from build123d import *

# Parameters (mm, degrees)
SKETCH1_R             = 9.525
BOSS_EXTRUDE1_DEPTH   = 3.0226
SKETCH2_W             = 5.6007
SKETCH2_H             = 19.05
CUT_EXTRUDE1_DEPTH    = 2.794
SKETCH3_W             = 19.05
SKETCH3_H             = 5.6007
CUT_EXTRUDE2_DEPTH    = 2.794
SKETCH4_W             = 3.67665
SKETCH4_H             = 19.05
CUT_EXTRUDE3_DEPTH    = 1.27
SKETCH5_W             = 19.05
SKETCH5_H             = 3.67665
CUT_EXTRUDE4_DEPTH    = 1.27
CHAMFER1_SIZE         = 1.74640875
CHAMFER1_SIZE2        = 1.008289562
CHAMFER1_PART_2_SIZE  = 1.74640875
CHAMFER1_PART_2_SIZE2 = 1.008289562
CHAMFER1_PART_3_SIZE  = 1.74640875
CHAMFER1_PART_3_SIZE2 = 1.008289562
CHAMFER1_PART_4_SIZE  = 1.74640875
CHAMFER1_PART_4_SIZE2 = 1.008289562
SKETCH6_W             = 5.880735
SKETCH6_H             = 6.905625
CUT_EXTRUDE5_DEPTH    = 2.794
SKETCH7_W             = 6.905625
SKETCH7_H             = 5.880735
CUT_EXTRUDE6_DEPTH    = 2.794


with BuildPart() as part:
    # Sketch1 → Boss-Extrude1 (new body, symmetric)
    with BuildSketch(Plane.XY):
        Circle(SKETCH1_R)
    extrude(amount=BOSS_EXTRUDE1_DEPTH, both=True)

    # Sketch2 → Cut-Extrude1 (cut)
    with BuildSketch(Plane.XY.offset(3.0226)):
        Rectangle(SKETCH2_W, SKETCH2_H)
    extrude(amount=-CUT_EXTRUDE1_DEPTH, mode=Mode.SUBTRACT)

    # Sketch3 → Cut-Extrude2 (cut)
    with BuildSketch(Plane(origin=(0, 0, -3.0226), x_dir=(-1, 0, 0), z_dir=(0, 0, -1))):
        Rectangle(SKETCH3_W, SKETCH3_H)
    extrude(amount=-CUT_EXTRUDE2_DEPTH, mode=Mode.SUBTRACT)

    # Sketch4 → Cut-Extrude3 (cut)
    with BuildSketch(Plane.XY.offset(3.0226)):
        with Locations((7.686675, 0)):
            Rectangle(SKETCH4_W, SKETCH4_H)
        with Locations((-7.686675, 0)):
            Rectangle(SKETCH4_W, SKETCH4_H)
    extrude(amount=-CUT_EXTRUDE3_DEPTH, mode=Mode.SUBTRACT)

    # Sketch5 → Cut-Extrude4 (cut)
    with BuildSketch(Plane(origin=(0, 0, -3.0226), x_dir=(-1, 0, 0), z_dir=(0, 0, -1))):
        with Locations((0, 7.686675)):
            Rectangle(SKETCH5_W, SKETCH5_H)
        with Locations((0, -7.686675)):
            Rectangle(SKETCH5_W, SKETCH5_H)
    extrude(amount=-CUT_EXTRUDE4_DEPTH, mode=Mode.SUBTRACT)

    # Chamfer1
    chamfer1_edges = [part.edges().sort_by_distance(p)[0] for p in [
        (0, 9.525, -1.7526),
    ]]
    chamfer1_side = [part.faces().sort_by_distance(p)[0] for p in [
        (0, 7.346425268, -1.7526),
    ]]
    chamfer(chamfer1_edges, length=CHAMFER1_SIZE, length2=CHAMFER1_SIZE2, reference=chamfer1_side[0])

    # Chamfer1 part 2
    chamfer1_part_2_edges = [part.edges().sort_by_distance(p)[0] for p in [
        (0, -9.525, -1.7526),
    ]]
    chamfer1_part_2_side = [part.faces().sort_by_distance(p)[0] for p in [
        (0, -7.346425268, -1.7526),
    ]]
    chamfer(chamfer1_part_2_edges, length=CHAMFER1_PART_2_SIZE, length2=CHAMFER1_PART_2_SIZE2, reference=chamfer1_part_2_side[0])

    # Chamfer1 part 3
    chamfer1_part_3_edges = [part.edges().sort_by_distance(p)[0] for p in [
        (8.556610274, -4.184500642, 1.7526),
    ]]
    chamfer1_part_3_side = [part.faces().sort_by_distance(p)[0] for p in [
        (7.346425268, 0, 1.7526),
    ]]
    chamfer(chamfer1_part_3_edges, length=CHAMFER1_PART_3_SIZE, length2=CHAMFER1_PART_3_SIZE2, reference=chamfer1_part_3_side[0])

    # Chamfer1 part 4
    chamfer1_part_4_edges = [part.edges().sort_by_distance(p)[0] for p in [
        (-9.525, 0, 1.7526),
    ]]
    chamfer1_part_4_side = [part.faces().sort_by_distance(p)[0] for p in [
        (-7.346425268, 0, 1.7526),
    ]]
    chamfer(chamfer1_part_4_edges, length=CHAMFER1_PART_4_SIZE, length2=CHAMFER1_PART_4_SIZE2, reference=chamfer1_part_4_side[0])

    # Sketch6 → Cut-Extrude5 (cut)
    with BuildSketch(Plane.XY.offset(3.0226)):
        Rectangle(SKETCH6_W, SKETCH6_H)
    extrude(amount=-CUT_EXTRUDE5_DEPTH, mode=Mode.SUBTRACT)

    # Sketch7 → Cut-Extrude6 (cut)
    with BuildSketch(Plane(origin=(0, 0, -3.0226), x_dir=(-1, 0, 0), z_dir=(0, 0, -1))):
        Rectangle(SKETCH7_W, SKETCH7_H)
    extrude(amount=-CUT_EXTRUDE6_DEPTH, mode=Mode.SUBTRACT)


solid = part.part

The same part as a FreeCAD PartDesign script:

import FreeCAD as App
import Part
import Sketcher

V = App.Vector
Q = App.Units.Quantity


def edges_at(feature, points):
    """Names of the edges that pass closest to the given points."""
    edges = feature.Shape.Edges
    near = lambda p: min(range(len(edges)), key=lambda i: edges[i].distToShape(Part.Vertex(*p))[0])
    return sorted({f"Edge{near(p) + 1}" for p in points})

doc = App.newDocument("Part")
params = doc.addObject("Spreadsheet::Sheet", "Params")
for row, (alias, value) in enumerate([
    ("sketch1_diameter", "0.75 in"),
    ("pad1_length", "0.238 in"),
    ("sketch2_height", "0.75 in"),
    ("pocket1_length", "0.11 in"),
    ("sketch3_width", "0.75 in"),
    ("pocket2_length", "0.11 in"),
    ("sketch4_height", "0.75 in"),
    ("pocket3_length", "0.05 in"),
    ("sketch5_width", "0.75 in"),
    ("pocket4_length", "0.05 in"),
    ("chamfer_size", "1.746409 mm"),
    ("chamfer_size2", "1.00829 mm"),
    ("chamfer2_size", "1.746409 mm"),
    ("chamfer2_size2", "1.00829 mm"),
    ("chamfer3_size", "1.746409 mm"),
    ("chamfer3_size2", "1.00829 mm"),
    ("chamfer4_size", "1.746409 mm"),
    ("chamfer4_size2", "1.00829 mm"),
    ("pocket5_length", "0.11 in"),
    ("pocket6_length", "0.11 in"),
], start=1):
    params.set(f"A{row}", alias)
    params.set(f"B{row}", "=" + value)
    params.setAlias(f"B{row}", alias)

body = doc.addObject("PartDesign::Body", "Body")

# Sketch on XY plane
sketch1 = body.newObject("Sketcher::SketchObject", "Sketch")
sketch1.AttachmentSupport = (doc.getObject("XY_Plane"), [""])
sketch1.MapMode = "FlatFace"
sketch1.addGeometry(Part.Circle(V(0, 0, 0), V(0, 0, 1), 10), False)
sketch1.addConstraint(Sketcher.Constraint("Coincident", 0, 3, -1, 1))
sketch1.addConstraint(Sketcher.Constraint("Diameter", 0, Q("0.75 in")))
sketch1.setExpression("Constraints[1]", "Params.sketch1_diameter")
pad1 = body.newObject("PartDesign::Pad", "Pad")
pad1.Profile = sketch1
pad1.setExpression("Length", "Params.pad1_length")
pad1.Midplane = True

# Sketch on XY plane
sketch2 = body.newObject("Sketcher::SketchObject", "Sketch001")
sketch2.AttachmentSupport = (doc.getObject("XY_Plane"), [""])
sketch2.MapMode = "FlatFace"
sketch2.AttachmentOffset = App.Placement(V(0, 0, 0.119 * 25.4), App.Rotation())
sketch2.addGeometry(Part.LineSegment(V(-3, 10, 0), V(-3, -10, 0)), False)
sketch2.addGeometry(Part.LineSegment(V(-3, -10, 0), V(3, -10, 0)), False)
sketch2.addGeometry(Part.LineSegment(V(3, -10, 0), V(3, 10, 0)), False)
sketch2.addGeometry(Part.LineSegment(V(3, 10, 0), V(-3, 10, 0)), False)
sketch2.addConstraint(Sketcher.Constraint("Coincident", 0, 2, 1, 1))
sketch2.addConstraint(Sketcher.Constraint("Coincident", 1, 2, 2, 1))
sketch2.addConstraint(Sketcher.Constraint("Coincident", 2, 2, 3, 1))
sketch2.addConstraint(Sketcher.Constraint("Coincident", 3, 2, 0, 1))
sketch2.addConstraint(Sketcher.Constraint("Vertical", 0))
sketch2.addConstraint(Sketcher.Constraint("Horizontal", 1))
sketch2.addConstraint(Sketcher.Constraint("Vertical", 2))
sketch2.addConstraint(Sketcher.Constraint("Horizontal", 3))
sketch2.addConstraint(Sketcher.Constraint("Symmetric", 0, 2, 2, 2, -1, 1))
sketch2.addConstraint(Sketcher.Constraint("DistanceY", 0, 2, 0, 1, Q("0.75 in")))
sketch2.addConstraint(Sketcher.Constraint("DistanceX", 1, 1, 1, 2, Q("0.2205 in")))
sketch2.setExpression("Constraints[9]", "Params.sketch2_height")
pocket1 = body.newObject("PartDesign::Pocket", "Pocket")
pocket1.Profile = sketch2
pocket1.setExpression("Length", "Params.pocket1_length")

# Sketch on XY plane
sketch3 = body.newObject("Sketcher::SketchObject", "Sketch002")
sketch3.AttachmentSupport = (doc.getObject("XY_Plane"), [""])
sketch3.MapMode = "FlatFace"
sketch3.AttachmentOffset = App.Placement(V(0, 0, -0.119 * 25.4), App.Rotation())
sketch3.addGeometry(Part.LineSegment(V(10, 3, 0), V(10, -3, 0)), False)
sketch3.addGeometry(Part.LineSegment(V(10, -3, 0), V(-10, -3, 0)), False)
sketch3.addGeometry(Part.LineSegment(V(-10, -3, 0), V(-10, 3, 0)), False)
sketch3.addGeometry(Part.LineSegment(V(-10, 3, 0), V(10, 3, 0)), False)
sketch3.addConstraint(Sketcher.Constraint("Coincident", 0, 2, 1, 1))
sketch3.addConstraint(Sketcher.Constraint("Coincident", 1, 2, 2, 1))
sketch3.addConstraint(Sketcher.Constraint("Coincident", 2, 2, 3, 1))
sketch3.addConstraint(Sketcher.Constraint("Coincident", 3, 2, 0, 1))
sketch3.addConstraint(Sketcher.Constraint("Vertical", 0))
sketch3.addConstraint(Sketcher.Constraint("Horizontal", 1))
sketch3.addConstraint(Sketcher.Constraint("Vertical", 2))
sketch3.addConstraint(Sketcher.Constraint("Horizontal", 3))
sketch3.addConstraint(Sketcher.Constraint("Symmetric", 0, 2, 2, 2, -1, 1))
sketch3.addConstraint(Sketcher.Constraint("DistanceX", 1, 2, 1, 1, Q("0.75 in")))
sketch3.addConstraint(Sketcher.Constraint("DistanceY", 0, 2, 0, 1, Q("0.2205 in")))
sketch3.setExpression("Constraints[9]", "Params.sketch3_width")
pocket2 = body.newObject("PartDesign::Pocket", "Pocket001")
pocket2.Profile = sketch3
pocket2.setExpression("Length", "Params.pocket2_length")
pocket2.Reversed = True

# Sketch on XY plane
sketch4 = body.newObject("Sketcher::SketchObject", "Sketch003")
sketch4.AttachmentSupport = (doc.getObject("XY_Plane"), [""])
sketch4.MapMode = "FlatFace"
sketch4.AttachmentOffset = App.Placement(V(0, 0, 0.119 * 25.4), App.Rotation())
sketch4.addGeometry(Part.LineSegment(V(5.8, 9.5, 0), V(5.8, -9.5, 0)), False)
sketch4.addGeometry(Part.LineSegment(V(5.8, -9.5, 0), V(9.5, -9.5, 0)), False)
sketch4.addGeometry(Part.LineSegment(V(9.5, -9.5, 0), V(9.5, 9.5, 0)), False)
sketch4.addGeometry(Part.LineSegment(V(9.5, 9.5, 0), V(5.8, 9.5, 0)), False)
sketch4.addGeometry(Part.LineSegment(V(-9.5, 9.5, 0), V(-9.5, -9.5, 0)), False)
sketch4.addGeometry(Part.LineSegment(V(-9.5, -9.5, 0), V(-5.8, -9.5, 0)), False)
sketch4.addGeometry(Part.LineSegment(V(-5.8, -9.5, 0), V(-5.8, 9.5, 0)), False)
sketch4.addGeometry(Part.LineSegment(V(-5.8, 9.5, 0), V(-9.5, 9.5, 0)), False)
sketch4.addConstraint(Sketcher.Constraint("Coincident", 0, 2, 1, 1))
sketch4.addConstraint(Sketcher.Constraint("Coincident", 1, 2, 2, 1))
sketch4.addConstraint(Sketcher.Constraint("Coincident", 2, 2, 3, 1))
sketch4.addConstraint(Sketcher.Constraint("Coincident", 3, 2, 0, 1))
sketch4.addConstraint(Sketcher.Constraint("Coincident", 4, 2, 5, 1))
sketch4.addConstraint(Sketcher.Constraint("Coincident", 5, 2, 6, 1))
sketch4.addConstraint(Sketcher.Constraint("Coincident", 6, 2, 7, 1))
sketch4.addConstraint(Sketcher.Constraint("Coincident", 7, 2, 4, 1))
sketch4.addConstraint(Sketcher.Constraint("Vertical", 0))
sketch4.addConstraint(Sketcher.Constraint("Horizontal", 1))
sketch4.addConstraint(Sketcher.Constraint("Vertical", 2))
sketch4.addConstraint(Sketcher.Constraint("Horizontal", 3))
sketch4.addConstraint(Sketcher.Constraint("Vertical", 4))
sketch4.addConstraint(Sketcher.Constraint("Horizontal", 5))
sketch4.addConstraint(Sketcher.Constraint("Vertical", 6))
sketch4.addConstraint(Sketcher.Constraint("Horizontal", 7))
sketch4.addConstraint(Sketcher.Constraint("Symmetric", 2, 2, 4, 2, -1, 1))
sketch4.addConstraint(Sketcher.Constraint("Symmetric", 0, 2, 6, 2, -1, 1))
sketch4.addConstraint(Sketcher.Constraint("Horizontal", 1, 2, 4, 2))
sketch4.addConstraint(Sketcher.Constraint("DistanceY", 0, 2, 0, 1, Q("0.75 in")))
sketch4.addConstraint(Sketcher.Constraint("DistanceX", 4, 2, 1, 2, Q("0.75 in")))
sketch4.addConstraint(Sketcher.Constraint("DistanceX", 5, 2, 0, 2, Q("0.4605 in")))
sketch4.setExpression("Constraints[19]", "Params.sketch4_height")
pocket3 = body.newObject("PartDesign::Pocket", "Pocket002")
pocket3.Profile = sketch4
pocket3.setExpression("Length", "Params.pocket3_length")

# Sketch on XY plane
sketch5 = body.newObject("Sketcher::SketchObject", "Sketch004")
sketch5.AttachmentSupport = (doc.getObject("XY_Plane"), [""])
sketch5.MapMode = "FlatFace"
sketch5.AttachmentOffset = App.Placement(V(0, 0, -0.119 * 25.4), App.Rotation())
sketch5.addGeometry(Part.LineSegment(V(9.5, 9.5, 0), V(9.5, 5.8, 0)), False)
sketch5.addGeometry(Part.LineSegment(V(9.5, 5.8, 0), V(-9.5, 5.8, 0)), False)
sketch5.addGeometry(Part.LineSegment(V(-9.5, 5.8, 0), V(-9.5, 9.5, 0)), False)
sketch5.addGeometry(Part.LineSegment(V(-9.5, 9.5, 0), V(9.5, 9.5, 0)), False)
sketch5.addGeometry(Part.LineSegment(V(9.5, -5.8, 0), V(9.5, -9.5, 0)), False)
sketch5.addGeometry(Part.LineSegment(V(9.5, -9.5, 0), V(-9.5, -9.5, 0)), False)
sketch5.addGeometry(Part.LineSegment(V(-9.5, -9.5, 0), V(-9.5, -5.8, 0)), False)
sketch5.addGeometry(Part.LineSegment(V(-9.5, -5.8, 0), V(9.5, -5.8, 0)), False)
sketch5.addConstraint(Sketcher.Constraint("Coincident", 0, 2, 1, 1))
sketch5.addConstraint(Sketcher.Constraint("Coincident", 1, 2, 2, 1))
sketch5.addConstraint(Sketcher.Constraint("Coincident", 2, 2, 3, 1))
sketch5.addConstraint(Sketcher.Constraint("Coincident", 3, 2, 0, 1))
sketch5.addConstraint(Sketcher.Constraint("Coincident", 4, 2, 5, 1))
sketch5.addConstraint(Sketcher.Constraint("Coincident", 5, 2, 6, 1))
sketch5.addConstraint(Sketcher.Constraint("Coincident", 6, 2, 7, 1))
sketch5.addConstraint(Sketcher.Constraint("Coincident", 7, 2, 4, 1))
sketch5.addConstraint(Sketcher.Constraint("Vertical", 0))
sketch5.addConstraint(Sketcher.Constraint("Horizontal", 1))
sketch5.addConstraint(Sketcher.Constraint("Vertical", 2))
sketch5.addConstraint(Sketcher.Constraint("Horizontal", 3))
sketch5.addConstraint(Sketcher.Constraint("Vertical", 4))
sketch5.addConstraint(Sketcher.Constraint("Horizontal", 5))
sketch5.addConstraint(Sketcher.Constraint("Vertical", 6))
sketch5.addConstraint(Sketcher.Constraint("Horizontal", 7))
sketch5.addConstraint(Sketcher.Constraint("Symmetric", 2, 2, 4, 2, -1, 1))
sketch5.addConstraint(Sketcher.Constraint("Symmetric", 0, 2, 6, 2, -1, 1))
sketch5.addConstraint(Sketcher.Constraint("Vertical", 3, 2, 4, 2))
sketch5.addConstraint(Sketcher.Constraint("DistanceX", 1, 2, 1, 1, Q("0.75 in")))
sketch5.addConstraint(Sketcher.Constraint("DistanceY", 4, 2, 3, 2, Q("0.75 in")))
sketch5.addConstraint(Sketcher.Constraint("DistanceY", 6, 2, 1, 2, Q("0.4605 in")))
sketch5.setExpression("Constraints[19]", "Params.sketch5_width")
pocket4 = body.newObject("PartDesign::Pocket", "Pocket003")
pocket4.Profile = sketch5
pocket4.setExpression("Length", "Params.pocket4_length")
pocket4.Reversed = True
doc.recompute()

chamfer = body.newObject("PartDesign::Chamfer", "Chamfer")
chamfer.Base = (pocket4, edges_at(pocket4, [(0, 9.525, -1.753)]))
chamfer.ChamferType = "Two distances"
chamfer.setExpression("Size", "Params.chamfer_size")
chamfer.setExpression("Size2", "Params.chamfer_size2")
chamfer.FlipDirection = True
doc.recompute()

chamfer2 = body.newObject("PartDesign::Chamfer", "Chamfer001")
chamfer2.Base = (chamfer, edges_at(chamfer, [(0, -9.525, -1.753)]))
chamfer2.ChamferType = "Two distances"
chamfer2.setExpression("Size", "Params.chamfer2_size")
chamfer2.setExpression("Size2", "Params.chamfer2_size2")
chamfer2.FlipDirection = True
doc.recompute()

chamfer3 = body.newObject("PartDesign::Chamfer", "Chamfer002")
chamfer3.Base = (chamfer2, edges_at(chamfer2, [(8.557, -4.185, 1.753)]))
chamfer3.ChamferType = "Two distances"
chamfer3.setExpression("Size", "Params.chamfer3_size")
chamfer3.setExpression("Size2", "Params.chamfer3_size2")
chamfer3.FlipDirection = True
doc.recompute()

chamfer4 = body.newObject("PartDesign::Chamfer", "Chamfer003")
chamfer4.Base = (chamfer3, edges_at(chamfer3, [(-9.525, 0, 1.753)]))
chamfer4.ChamferType = "Two distances"
chamfer4.setExpression("Size", "Params.chamfer4_size")
chamfer4.setExpression("Size2", "Params.chamfer4_size2")
chamfer4.FlipDirection = True

# Sketch on XY plane
sketch6 = body.newObject("Sketcher::SketchObject", "Sketch005")
sketch6.AttachmentSupport = (doc.getObject("XY_Plane"), [""])
sketch6.MapMode = "FlatFace"
sketch6.AttachmentOffset = App.Placement(V(0, 0, 0.119 * 25.4), App.Rotation())
sketch6.addGeometry(Part.LineSegment(V(-3, 3, 0), V(-3, -3, 0)), False)
sketch6.addGeometry(Part.LineSegment(V(-3, -3, 0), V(3, -3, 0)), False)
sketch6.addGeometry(Part.LineSegment(V(3, -3, 0), V(3, 3, 0)), False)
sketch6.addGeometry(Part.LineSegment(V(3, 3, 0), V(-3, 3, 0)), False)
sketch6.addConstraint(Sketcher.Constraint("Coincident", 0, 2, 1, 1))
sketch6.addConstraint(Sketcher.Constraint("Coincident", 1, 2, 2, 1))
sketch6.addConstraint(Sketcher.Constraint("Coincident", 2, 2, 3, 1))
sketch6.addConstraint(Sketcher.Constraint("Coincident", 3, 2, 0, 1))
sketch6.addConstraint(Sketcher.Constraint("Vertical", 0))
sketch6.addConstraint(Sketcher.Constraint("Horizontal", 1))
sketch6.addConstraint(Sketcher.Constraint("Vertical", 2))
sketch6.addConstraint(Sketcher.Constraint("Horizontal", 3))
sketch6.addConstraint(Sketcher.Constraint("Symmetric", 0, 2, 2, 2, -1, 1))
sketch6.addConstraint(Sketcher.Constraint("DistanceX", 1, 1, 1, 2, 5.880735))
sketch6.addConstraint(Sketcher.Constraint("DistanceY", 0, 2, 0, 1, 6.905625))
pocket5 = body.newObject("PartDesign::Pocket", "Pocket004")
pocket5.Profile = sketch6
pocket5.setExpression("Length", "Params.pocket5_length")

# Sketch on XY plane
sketch7 = body.newObject("Sketcher::SketchObject", "Sketch006")
sketch7.AttachmentSupport = (doc.getObject("XY_Plane"), [""])
sketch7.MapMode = "FlatFace"
sketch7.AttachmentOffset = App.Placement(V(0, 0, -0.119 * 25.4), App.Rotation())
sketch7.addGeometry(Part.LineSegment(V(3, 3, 0), V(3, -3, 0)), False)
sketch7.addGeometry(Part.LineSegment(V(3, -3, 0), V(-3, -3, 0)), False)
sketch7.addGeometry(Part.LineSegment(V(-3, -3, 0), V(-3, 3, 0)), False)
sketch7.addGeometry(Part.LineSegment(V(-3, 3, 0), V(3, 3, 0)), False)
sketch7.addConstraint(Sketcher.Constraint("Coincident", 0, 2, 1, 1))
sketch7.addConstraint(Sketcher.Constraint("Coincident", 1, 2, 2, 1))
sketch7.addConstraint(Sketcher.Constraint("Coincident", 2, 2, 3, 1))
sketch7.addConstraint(Sketcher.Constraint("Coincident", 3, 2, 0, 1))
sketch7.addConstraint(Sketcher.Constraint("Vertical", 0))
sketch7.addConstraint(Sketcher.Constraint("Horizontal", 1))
sketch7.addConstraint(Sketcher.Constraint("Vertical", 2))
sketch7.addConstraint(Sketcher.Constraint("Horizontal", 3))
sketch7.addConstraint(Sketcher.Constraint("Symmetric", 0, 2, 2, 2, -1, 1))
sketch7.addConstraint(Sketcher.Constraint("DistanceX", 1, 2, 1, 1, 6.905625))
sketch7.addConstraint(Sketcher.Constraint("DistanceY", 0, 2, 0, 1, 5.880735))
pocket6 = body.newObject("PartDesign::Pocket", "Pocket005")
pocket6.Profile = sketch7
pocket6.setExpression("Length", "Params.pocket6_length")
pocket6.Reversed = True

doc.recompute()
